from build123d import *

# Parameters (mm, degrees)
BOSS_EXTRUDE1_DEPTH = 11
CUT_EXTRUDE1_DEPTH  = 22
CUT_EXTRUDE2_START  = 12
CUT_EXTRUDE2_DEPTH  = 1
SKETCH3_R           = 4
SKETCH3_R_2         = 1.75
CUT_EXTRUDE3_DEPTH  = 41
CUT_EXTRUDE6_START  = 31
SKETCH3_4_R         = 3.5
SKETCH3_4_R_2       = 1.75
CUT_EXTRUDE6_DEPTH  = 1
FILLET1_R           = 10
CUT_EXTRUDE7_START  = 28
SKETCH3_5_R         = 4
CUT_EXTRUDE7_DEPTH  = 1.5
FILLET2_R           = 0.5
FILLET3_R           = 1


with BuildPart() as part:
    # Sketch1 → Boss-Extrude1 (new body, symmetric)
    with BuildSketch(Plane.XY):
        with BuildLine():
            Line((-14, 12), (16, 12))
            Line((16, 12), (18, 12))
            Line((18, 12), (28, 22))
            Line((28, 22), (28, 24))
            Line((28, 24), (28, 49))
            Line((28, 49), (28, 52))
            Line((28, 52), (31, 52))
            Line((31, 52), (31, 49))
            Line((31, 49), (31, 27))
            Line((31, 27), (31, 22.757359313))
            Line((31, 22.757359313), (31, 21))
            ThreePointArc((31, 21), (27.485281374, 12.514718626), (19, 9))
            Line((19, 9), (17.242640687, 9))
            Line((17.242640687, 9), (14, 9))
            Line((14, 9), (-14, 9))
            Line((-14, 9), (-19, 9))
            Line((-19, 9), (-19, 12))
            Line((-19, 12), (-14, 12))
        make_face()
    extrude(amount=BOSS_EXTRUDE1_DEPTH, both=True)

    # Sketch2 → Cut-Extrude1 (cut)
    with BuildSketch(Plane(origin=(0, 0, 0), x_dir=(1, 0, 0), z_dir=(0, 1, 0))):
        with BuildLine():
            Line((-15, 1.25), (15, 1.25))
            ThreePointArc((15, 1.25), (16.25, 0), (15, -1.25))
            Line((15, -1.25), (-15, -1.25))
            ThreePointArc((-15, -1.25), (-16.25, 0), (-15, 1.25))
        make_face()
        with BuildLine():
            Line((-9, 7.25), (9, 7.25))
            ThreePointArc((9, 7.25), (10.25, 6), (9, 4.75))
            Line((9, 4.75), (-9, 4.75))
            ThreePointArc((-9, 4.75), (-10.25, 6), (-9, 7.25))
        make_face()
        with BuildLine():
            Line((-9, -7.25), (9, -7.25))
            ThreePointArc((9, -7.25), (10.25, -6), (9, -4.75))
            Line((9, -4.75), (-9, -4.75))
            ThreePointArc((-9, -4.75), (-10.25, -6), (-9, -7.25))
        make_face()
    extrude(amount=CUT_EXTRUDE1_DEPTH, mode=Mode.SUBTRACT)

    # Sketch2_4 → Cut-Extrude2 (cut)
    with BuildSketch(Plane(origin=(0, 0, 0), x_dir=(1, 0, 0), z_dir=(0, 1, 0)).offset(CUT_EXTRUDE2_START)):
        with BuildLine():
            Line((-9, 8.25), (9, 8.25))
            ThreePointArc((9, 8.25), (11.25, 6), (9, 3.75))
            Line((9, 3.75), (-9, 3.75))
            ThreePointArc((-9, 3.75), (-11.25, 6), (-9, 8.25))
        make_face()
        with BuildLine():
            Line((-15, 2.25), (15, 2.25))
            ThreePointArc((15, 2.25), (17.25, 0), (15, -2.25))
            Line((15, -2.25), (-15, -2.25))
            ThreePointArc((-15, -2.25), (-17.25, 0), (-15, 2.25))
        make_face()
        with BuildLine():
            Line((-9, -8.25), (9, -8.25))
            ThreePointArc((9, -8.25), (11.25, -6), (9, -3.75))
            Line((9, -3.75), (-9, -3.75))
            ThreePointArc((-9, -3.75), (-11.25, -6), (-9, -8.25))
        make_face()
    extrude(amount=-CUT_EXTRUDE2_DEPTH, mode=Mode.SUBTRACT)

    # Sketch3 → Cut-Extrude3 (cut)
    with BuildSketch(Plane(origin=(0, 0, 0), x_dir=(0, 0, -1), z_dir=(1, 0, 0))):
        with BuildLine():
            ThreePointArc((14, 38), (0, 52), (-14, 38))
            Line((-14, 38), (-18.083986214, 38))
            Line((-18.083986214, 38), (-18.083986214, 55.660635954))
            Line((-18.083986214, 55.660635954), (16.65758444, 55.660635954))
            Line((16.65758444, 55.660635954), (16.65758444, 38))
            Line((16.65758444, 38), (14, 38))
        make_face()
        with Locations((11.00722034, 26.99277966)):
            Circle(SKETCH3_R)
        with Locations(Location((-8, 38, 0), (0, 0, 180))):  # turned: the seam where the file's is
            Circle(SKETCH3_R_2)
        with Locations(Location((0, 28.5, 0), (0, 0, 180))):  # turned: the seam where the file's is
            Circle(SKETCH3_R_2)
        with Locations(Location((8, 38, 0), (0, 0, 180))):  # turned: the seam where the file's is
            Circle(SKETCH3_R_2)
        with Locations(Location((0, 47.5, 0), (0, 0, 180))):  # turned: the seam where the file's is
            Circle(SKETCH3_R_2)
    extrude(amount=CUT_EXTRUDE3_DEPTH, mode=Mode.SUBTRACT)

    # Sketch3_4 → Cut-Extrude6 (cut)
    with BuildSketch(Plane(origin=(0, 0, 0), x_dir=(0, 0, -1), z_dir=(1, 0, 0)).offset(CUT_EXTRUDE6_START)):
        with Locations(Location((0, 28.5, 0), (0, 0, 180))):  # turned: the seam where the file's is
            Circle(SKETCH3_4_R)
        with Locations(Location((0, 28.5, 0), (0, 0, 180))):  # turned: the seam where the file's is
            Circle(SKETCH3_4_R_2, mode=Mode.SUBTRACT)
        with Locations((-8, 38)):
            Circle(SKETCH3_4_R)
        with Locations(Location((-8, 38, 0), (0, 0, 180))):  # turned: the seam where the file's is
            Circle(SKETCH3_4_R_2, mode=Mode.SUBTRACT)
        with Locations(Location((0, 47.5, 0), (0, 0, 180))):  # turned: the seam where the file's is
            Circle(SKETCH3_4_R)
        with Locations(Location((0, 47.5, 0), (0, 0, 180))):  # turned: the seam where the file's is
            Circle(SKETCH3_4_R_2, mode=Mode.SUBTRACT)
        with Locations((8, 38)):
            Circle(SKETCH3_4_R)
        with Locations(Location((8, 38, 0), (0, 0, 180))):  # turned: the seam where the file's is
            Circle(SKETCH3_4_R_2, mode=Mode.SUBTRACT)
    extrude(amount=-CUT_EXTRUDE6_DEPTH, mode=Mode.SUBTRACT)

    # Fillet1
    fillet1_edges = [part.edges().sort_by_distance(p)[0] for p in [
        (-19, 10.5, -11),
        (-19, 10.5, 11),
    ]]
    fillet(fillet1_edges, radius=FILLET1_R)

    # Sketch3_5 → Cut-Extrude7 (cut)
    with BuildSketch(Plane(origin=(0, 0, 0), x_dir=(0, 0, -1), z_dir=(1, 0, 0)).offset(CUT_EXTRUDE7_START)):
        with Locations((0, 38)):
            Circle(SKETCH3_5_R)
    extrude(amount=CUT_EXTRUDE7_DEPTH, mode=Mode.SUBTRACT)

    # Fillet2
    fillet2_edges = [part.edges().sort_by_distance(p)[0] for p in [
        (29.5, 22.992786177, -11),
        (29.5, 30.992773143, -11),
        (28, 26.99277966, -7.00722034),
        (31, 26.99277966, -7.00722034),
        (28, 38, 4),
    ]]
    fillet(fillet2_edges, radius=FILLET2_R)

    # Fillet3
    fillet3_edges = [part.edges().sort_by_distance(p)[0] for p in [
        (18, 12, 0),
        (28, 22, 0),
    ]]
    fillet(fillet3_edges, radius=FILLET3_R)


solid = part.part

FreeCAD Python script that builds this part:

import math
import FreeCAD as App
import Part
import Sketcher

V = App.Vector
Q = App.Units.Quantity


def edges_at(feature, points):
    """Names of the edges that pass closest to the given points."""
    edges = feature.Shape.Edges
    near = lambda p: min(range(len(edges)), key=lambda i: edges[i].distToShape(Part.Vertex(*p))[0])
    return sorted({f"Edge{near(p) + 1}" for p in points})

doc = App.newDocument("Part")
params = doc.addObject("Spreadsheet::Sheet", "Params")
for row, (alias, value) in enumerate([
    ("sketch1_radius", "12 mm"),
    ("sketch1_width", "37 mm"),
    ("sketch1_width2", "38 mm"),
    ("sketch1_width3", "3 mm"),
    ("sketch1_height", "31 mm"),
    ("pad1_length", "22 mm"),
    ("sketch2_width", "30 mm"),
    ("sketch2_width2", "18 mm"),
    ("sketch2_radius", "1.25 mm"),
    ("pocket1_length", "22 mm"),
    ("sketch3_width", "18 mm"),
    ("sketch3_width2", "30 mm"),
    ("sketch3_radius", "2.25 mm"),
    ("pocket2_length", "1 mm"),
    ("sketch4_diameter", "8 mm"),
    ("sketch4_radius", "14 mm"),
    ("sketch4_diameter2", "3.5 mm"),
    ("pocket3_length", "41 mm"),
    ("sketch5_diameter", "7 mm"),
    ("sketch5_diameter2", "3.5 mm"),
    ("pocket4_length", "1 mm"),
    ("fillet_radius", "10 mm"),
    ("sketch6_diameter", "8 mm"),
    ("pocket5_length", "1.5 mm"),
    ("fillet2_radius", "0.5 mm"),
    ("fillet3_radius", "1 mm"),
], start=1):
    params.set(f"A{row}", alias)
    params.set(f"B{row}", "=" + value)
    params.setAlias(f"B{row}", alias)

body = doc.addObject("PartDesign::Body", "Body")

# Sketch on XY plane
sketch1 = body.newObject("Sketcher::SketchObject", "Sketch")
sketch1.AttachmentSupport = (doc.getObject("XY_Plane"), [""])
sketch1.MapMode = "FlatFace"
sketch1.addGeometry([
    Part.LineSegment(V(28, 22, 0), V(18, 12, 0)),  # 0
    Part.LineSegment(V(18, 12, 0), V(-19, 12, 0)),  # 1
    Part.LineSegment(V(-19, 12, 0), V(-19, 9, 0)),  # 2
    Part.LineSegment(V(-19, 9, 0), V(19, 9, 0)),  # 3
    Part.ArcOfCircle(Part.Circle(V(19, 21, 0), V(0, 0, 1), 12), math.radians(-90), math.radians(0)),  # 4
    Part.LineSegment(V(31, 21, 0), V(31, 52, 0)),  # 5
    Part.LineSegment(V(31, 52, 0), V(28, 52, 0)),  # 6
    Part.LineSegment(V(28, 52, 0), V(28, 22, 0)),  # 7
], False)
sketch1.addConstraint([
    Sketcher.Constraint("Coincident", 0, 2, 1, 1),
    Sketcher.Constraint("Coincident", 1, 2, 2, 1),
    Sketcher.Constraint("Coincident", 2, 2, 3, 1),
    Sketcher.Constraint("Tangent", 3, 2, 4, 1),
    Sketcher.Constraint("Tangent", 4, 2, 5, 1),
    Sketcher.Constraint("Coincident", 5, 2, 6, 1),
    Sketcher.Constraint("Coincident", 6, 2, 7, 1),
    Sketcher.Constraint("Coincident", 7, 2, 0, 1),
    Sketcher.Constraint("Horizontal", 1),
    Sketcher.Constraint("Vertical", 2),
    Sketcher.Constraint("Horizontal", 3),
    Sketcher.Constraint("Vertical", 5),
    Sketcher.Constraint("Horizontal", 6),
    Sketcher.Constraint("Vertical", 7),
    Sketcher.Constraint("Equal", 6, 2),
    Sketcher.Constraint("Radius", 4, Q("12 mm")),
    Sketcher.Constraint("DistanceX", 1, 2, 1, 1, Q("37 mm")),
    Sketcher.Constraint("DistanceX", 3, 1, 3, 2, Q("38 mm")),
    Sketcher.Constraint("DistanceX", 6, 2, 6, 1, Q("3 mm")),
    Sketcher.Constraint("DistanceY", 5, 1, 5, 2, Q("31 mm")),
    Sketcher.Constraint("DistanceY", 7, 2, 7, 1, Q("30 mm")),
    Sketcher.Constraint("DistanceX", -1, 1, 4, 3, Q("19 mm")),
    Sketcher.Constraint("DistanceY", -1, 1, 4, 3, Q("21 mm")),
])
sketch1.setExpression("Constraints[15]", "Params.sketch1_radius")
sketch1.setExpression("Constraints[16]", "Params.sketch1_width")
sketch1.setExpression("Constraints[17]", "Params.sketch1_width2")
sketch1.setExpression("Constraints[18]", "Params.sketch1_width3")
sketch1.setExpression("Constraints[19]", "Params.sketch1_height")
pad1 = body.newObject("PartDesign::Pad", "Pad")
pad1.Profile = sketch1
pad1.setExpression("Length", "Params.pad1_length")
pad1.Midplane = True

# Sketch on XZ plane
sketch2 = body.newObject("Sketcher::SketchObject", "Sketch001")
sketch2.AttachmentSupport = (doc.getObject("XZ_Plane"), [""])
sketch2.MapMode = "FlatFace"
sketch2.addGeometry([
    Part.LineSegment(V(15, -1.25, 0), V(-15, -1.25, 0)),  # 0
    Part.ArcOfCircle(Part.Circle(V(-15, 0, 0), V(0, 0, 1), 1.25), math.radians(90), math.radians(270)),  # 1
    Part.LineSegment(V(-15, 1.25, 0), V(15, 1.25, 0)),  # 2
    Part.ArcOfCircle(Part.Circle(V(15, 0, 0), V(0, 0, 1), 1.25), math.radians(-90), math.radians(90)),  # 3
    Part.LineSegment(V(9, -7.25, 0), V(-9, -7.25, 0)),  # 4
    Part.ArcOfCircle(Part.Circle(V(-9, -6, 0), V(0, 0, 1), 1.25), math.radians(90), math.radians(270)),  # 5
    Part.LineSegment(V(-9, -4.75, 0), V(9, -4.75, 0)),  # 6
    Part.ArcOfCircle(Part.Circle(V(9, -6, 0), V(0, 0, 1), 1.25), math.radians(-90), math.radians(90)),  # 7
    Part.LineSegment(V(-9, 7.25, 0), V(9, 7.25, 0)),  # 8
    Part.ArcOfCircle(Part.Circle(V(9, 6, 0), V(0, 0, 1), 1.25), math.radians(-90), math.radians(90)),  # 9
    Part.LineSegment(V(9, 4.75, 0), V(-9, 4.75, 0)),  # 10
    Part.ArcOfCircle(Part.Circle(V(-9, 6, 0), V(0, 0, 1), 1.25), math.radians(90), math.radians(270)),  # 11
], False)
sketch2.addConstraint([
    Sketcher.Constraint("Tangent", 0, 2, 1, 2),
    Sketcher.Constraint("Tangent", 1, 1, 2, 1),
    Sketcher.Constraint("Tangent", 2, 2, 3, 2),
    Sketcher.Constraint("Tangent", 3, 1, 0, 1),
    Sketcher.Constraint("Tangent", 4, 2, 5, 2),
    Sketcher.Constraint("Tangent", 5, 1, 6, 1),
    Sketcher.Constraint("Tangent", 6, 2, 7, 2),
    Sketcher.Constraint("Tangent", 7, 1, 4, 1),
    Sketcher.Constraint("Tangent", 8, 2, 9, 2),
    Sketcher.Constraint("Tangent", 9, 1, 10, 1),
    Sketcher.Constraint("Tangent", 10, 2, 11, 2),
    Sketcher.Constraint("Tangent", 11, 1, 8, 1),
    Sketcher.Constraint("Horizontal", 0),
    Sketcher.Constraint("Horizontal", 2),
    Sketcher.Constraint("Horizontal", 4),
    Sketcher.Constraint("Horizontal", 6),
    Sketcher.Constraint("Horizontal", 8),
    Sketcher.Constraint("Horizontal", 10),
    Sketcher.Constraint("Equal", 3, 5),
    Sketcher.Constraint("Equal", 7, 9),
    Sketcher.Constraint("Symmetric", 1, 3, 3, 3, -1, 1),
    Sketcher.Constraint("Symmetric", 5, 3, 9, 3, -1, 1),
    Sketcher.Constraint("Vertical", 7, 3, 9, 3),
    Sketcher.Constraint("Vertical", 5, 3, 11, 3),
    Sketcher.Constraint("DistanceX", 0, 2, 0, 1, Q("30 mm")),
    Sketcher.Constraint("DistanceX", 4, 2, 4, 1, Q("18 mm")),
    Sketcher.Constraint("Radius", 1, Q("1.25 mm")),
    Sketcher.Constraint("DistanceY", 5, 3, -1, 1, Q("6 mm")),
])
sketch2.setExpression("Constraints[24]", "Params.sketch2_width")
sketch2.setExpression("Constraints[25]", "Params.sketch2_width2")
sketch2.setExpression("Constraints[26]", "Params.sketch2_radius")
pocket1 = body.newObject("PartDesign::Pocket", "Pocket")
pocket1.Profile = sketch2
pocket1.setExpression("Length", "Params.pocket1_length")

# Sketch on XZ plane
sketch3 = body.newObject("Sketcher::SketchObject", "Sketch002")
sketch3.AttachmentSupport = (doc.getObject("XZ_Plane"), [""])
sketch3.MapMode = "FlatFace"
sketch3.AttachmentOffset = App.Placement(V(0, 0, -12), App.Rotation())
sketch3.addGeometry([
    Part.LineSegment(V(9, -8.25, 0), V(-9, -8.25, 0)),  # 0
    Part.ArcOfCircle(Part.Circle(V(-9, -6, 0), V(0, 0, 1), 2.25), math.radians(90), math.radians(270)),  # 1
    Part.LineSegment(V(-9, -3.75, 0), V(9, -3.75, 0)),  # 2
    Part.ArcOfCircle(Part.Circle(V(9, -6, 0), V(0, 0, 1), 2.25), math.radians(-90), math.radians(90)),  # 3
    Part.LineSegment(V(15, -2.25, 0), V(-15, -2.25, 0)),  # 4
    Part.ArcOfCircle(Part.Circle(V(-15, 0, 0), V(0, 0, 1), 2.25), math.radians(90), math.radians(270)),  # 5
    Part.LineSegment(V(-15, 2.25, 0), V(15, 2.25, 0)),  # 6
    Part.ArcOfCircle(Part.Circle(V(15, 0, 0), V(0, 0, 1), 2.25), math.radians(-90), math.radians(90)),  # 7
    Part.LineSegment(V(-9, 8.25, 0), V(9, 8.25, 0)),  # 8
    Part.ArcOfCircle(Part.Circle(V(9, 6, 0), V(0, 0, 1), 2.25), math.radians(-90), math.radians(90)),  # 9
    Part.LineSegment(V(9, 3.75, 0), V(-9, 3.75, 0)),  # 10
    Part.ArcOfCircle(Part.Circle(V(-9, 6, 0), V(0, 0, 1), 2.25), math.radians(90), math.radians(270)),  # 11
], False)
sketch3.addConstraint([
    Sketcher.Constraint("Tangent", 0, 2, 1, 2),
    Sketcher.Constraint("Tangent", 1, 1, 2, 1),
    Sketcher.Constraint("Tangent", 2, 2, 3, 2),
    Sketcher.Constraint("Tangent", 3, 1, 0, 1),
    Sketcher.Constraint("Tangent", 4, 2, 5, 2),
    Sketcher.Constraint("Tangent", 5, 1, 6, 1),
    Sketcher.Constraint("Tangent", 6, 2, 7, 2),
    Sketcher.Constraint("Tangent", 7, 1, 4, 1),
    Sketcher.Constraint("Tangent", 8, 2, 9, 2),
    Sketcher.Constraint("Tangent", 9, 1, 10, 1),
    Sketcher.Constraint("Tangent", 10, 2, 11, 2),
    Sketcher.Constraint("Tangent", 11, 1, 8, 1),
    Sketcher.Constraint("Horizontal", 0),
    Sketcher.Constraint("Horizontal", 2),
    Sketcher.Constraint("Horizontal", 4),
    Sketcher.Constraint("Horizontal", 6),
    Sketcher.Constraint("Horizontal", 8),
    Sketcher.Constraint("Horizontal", 10),
    Sketcher.Constraint("Equal", 3, 5),
    Sketcher.Constraint("Equal", 7, 9),
    Sketcher.Constraint("Symmetric", 5, 3, 7, 3, -1, 1),
    Sketcher.Constraint("Symmetric", 1, 3, 9, 3, -1, 1),
    Sketcher.Constraint("Vertical", 3, 3, 9, 3),
    Sketcher.Constraint("Vertical", 1, 3, 11, 3),
    Sketcher.Constraint("DistanceX", 0, 2, 0, 1, Q("18 mm")),
    Sketcher.Constraint("DistanceX", 4, 2, 4, 1, Q("30 mm")),
    Sketcher.Constraint("Radius", 1, Q("2.25 mm")),
    Sketcher.Constraint("DistanceY", 1, 3, -1, 1, Q("6 mm")),
])
sketch3.setExpression("Constraints[24]", "Params.sketch3_width")
sketch3.setExpression("Constraints[25]", "Params.sketch3_width2")
sketch3.setExpression("Constraints[26]", "Params.sketch3_radius")
pocket2 = body.newObject("PartDesign::Pocket", "Pocket001")
pocket2.Profile = sketch3
pocket2.setExpression("Length", "Params.pocket2_length")
pocket2.Reversed = True

# Sketch on YZ plane
sketch4 = body.newObject("Sketcher::SketchObject", "Sketch003")
sketch4.AttachmentSupport = (doc.getObject("YZ_Plane"), [""])
sketch4.MapMode = "FlatFace"
sketch4.addGeometry([
    Part.ArcOfCircle(Part.Circle(V(38, 0, 0), V(0, 0, 1), 14), math.radians(-90), math.radians(90)),  # 0
    Part.LineSegment(V(38, -14, 0), V(38, -16.657584, 0)),  # 1
    Part.LineSegment(V(38, -16.657584, 0), V(55.660636, -16.657584, 0)),  # 2
    Part.LineSegment(V(55.660636, -16.657584, 0), V(55.660636, 18.083986, 0)),  # 3
    Part.LineSegment(V(55.660636, 18.083986, 0), V(38, 18.083986, 0)),  # 4
    Part.LineSegment(V(38, 18.083986, 0), V(38, 14, 0)),  # 5
    Part.Circle(V(26.99278, -11.00722, 0), V(0, 0, 1), 4),  # 6
    Part.Circle(V(38, 8, 0), V(0, 0, 1), 1.75),  # 7
    Part.Circle(V(28.5, 0, 0), V(0, 0, 1), 1.75),  # 8
    Part.Circle(V(38, -8, 0), V(0, 0, 1), 1.75),  # 9
    Part.Circle(V(47.5, 0, 0), V(0, 0, 1), 1.75),  # 10
], False)
sketch4.addConstraint([
    Sketcher.Constraint("Coincident", 0, 1, 1, 1),
    Sketcher.Constraint("Coincident", 1, 2, 2, 1),
    Sketcher.Constraint("Coincident", 2, 2, 3, 1),
    Sketcher.Constraint("Coincident", 3, 2, 4, 1),
    Sketcher.Constraint("Coincident", 4, 2, 5, 1),
    Sketcher.Constraint("Coincident", 5, 2, 0, 2),
    Sketcher.Constraint("Vertical", 1),
    Sketcher.Constraint("Horizontal", 2),
    Sketcher.Constraint("Vertical", 3),
    Sketcher.Constraint("Horizontal", 4),
    Sketcher.Constraint("Vertical", 5),
    Sketcher.Constraint("Equal", 7, 8),
    Sketcher.Constraint("Equal", 8, 9),
    Sketcher.Constraint("Equal", 9, 10),
    Sketcher.Constraint("Symmetric", 7, 3, 9, 3, -1),
    Sketcher.Constraint("Symmetric", 0, 1, 5, 2, -1),
    Sketcher.Constraint("PointOnObject", 8, 3, -1),
    Sketcher.Constraint("PointOnObject", 10, 3, -1),
    Sketcher.Constraint("Vertical", 0, 3, 7, 3),
    Sketcher.Constraint("Vertical", 9, 3, 0, 1),
    Sketcher.Constraint("Diameter", 6, Q("8 mm")),
    Sketcher.Constraint("Radius", 0, Q("14 mm")),
    Sketcher.Constraint("Diameter", 7, Q("3.5 mm")),
    Sketcher.Constraint("DistanceX", -1, 1, 0, 3, Q("38 mm")),
    Sketcher.Constraint("DistanceY", -1, 1, 7, 3, Q("8 mm")),
    Sketcher.Constraint("DistanceX", 8, 3, 10, 3, Q("19 mm")),
    Sketcher.Constraint("DistanceX", -1, 1, 8, 3, Q("28.5 mm")),
    Sketcher.Constraint("DistanceY", 3, 1, 3, 2, Q("34.741571 mm")),
    Sketcher.Constraint("DistanceX", 2, 1, 2, 2, Q("17.660636 mm")),
    Sketcher.Constraint("DistanceY", 1, 2, 1, 1, Q("2.657584 mm")),
    Sketcher.Constraint("DistanceX", -1, 1, 6, 3, Q("26.99278 mm")),
    Sketcher.Constraint("DistanceY", 6, 3, -1, 1, Q("11.00722 mm")),
])
sketch4.setExpression("Constraints[20]", "Params.sketch4_diameter")
sketch4.setExpression("Constraints[21]", "Params.sketch4_radius")
sketch4.setExpression("Constraints[22]", "Params.sketch4_diameter2")
pocket3 = body.newObject("PartDesign::Pocket", "Pocket002")
pocket3.Profile = sketch4
pocket3.setExpression("Length", "Params.pocket3_length")
pocket3.Reversed = True

# Sketch on YZ plane
sketch5 = body.newObject("Sketcher::SketchObject", "Sketch004")
sketch5.AttachmentSupport = (doc.getObject("YZ_Plane"), [""])
sketch5.MapMode = "FlatFace"
sketch5.AttachmentOffset = App.Placement(V(0, 0, 31), App.Rotation())
sketch5.addGeometry([
    Part.Circle(V(28.5, 0, 0), V(0, 0, 1), 3.5),  # 0
    Part.Circle(V(28.5, 0, 0), V(0, 0, 1), 1.75),  # 1
    Part.Circle(V(38, 8, 0), V(0, 0, 1), 3.5),  # 2
    Part.Circle(V(38, 8, 0), V(0, 0, 1), 1.75),  # 3
    Part.Circle(V(47.5, 0, 0), V(0, 0, 1), 3.5),  # 4
    Part.Circle(V(47.5, 0, 0), V(0, 0, 1), 1.75),  # 5
    Part.Circle(V(38, -8, 0), V(0, 0, 1), 3.5),  # 6
    Part.Circle(V(38, -8, 0), V(0, 0, 1), 1.75),  # 7
], False)
sketch5.addConstraint([
    Sketcher.Constraint("Coincident", 1, 3, 0, 3),
    Sketcher.Constraint("Coincident", 3, 3, 2, 3),
    Sketcher.Constraint("Coincident", 5, 3, 4, 3),
    Sketcher.Constraint("Coincident", 7, 3, 6, 3),
    Sketcher.Constraint("Equal", 0, 2),
    Sketcher.Constraint("Equal", 1, 3),
    Sketcher.Constraint("Equal", 2, 4),
    Sketcher.Constraint("Equal", 3, 5),
    Sketcher.Constraint("Equal", 4, 6),
    Sketcher.Constraint("Equal", 5, 7),
    Sketcher.Constraint("Symmetric", 2, 3, 6, 3, -1),
    Sketcher.Constraint("PointOnObject", 0, 3, -1),
    Sketcher.Constraint("PointOnObject", 4, 3, -1),
    Sketcher.Constraint("Diameter", 0, Q("7 mm")),
    Sketcher.Constraint("Diameter", 1, Q("3.5 mm")),
    Sketcher.Constraint("DistanceX", -1, 1, 2, 3, Q("38 mm")),
    Sketcher.Constraint("DistanceY", -1, 1, 2, 3, Q("8 mm")),
    Sketcher.Constraint("DistanceX", 0, 3, 4, 3, Q("19 mm")),
    Sketcher.Constraint("DistanceX", -1, 1, 0, 3, Q("28.5 mm")),
])
sketch5.setExpression("Constraints[13]", "Params.sketch5_diameter")
sketch5.setExpression("Constraints[14]", "Params.sketch5_diameter2")
pocket4 = body.newObject("PartDesign::Pocket", "Pocket003")
pocket4.Profile = sketch5
pocket4.setExpression("Length", "Params.pocket4_length")
doc.recompute()

fillet = body.newObject("PartDesign::Fillet", "Fillet")
fillet.Base = (pocket4, edges_at(pocket4, [(-19, 10.5, -11), (-19, 10.5, 11)]))
fillet.setExpression("Radius", "Params.fillet_radius")

# Sketch on YZ plane
sketch6 = body.newObject("Sketcher::SketchObject", "Sketch005")
sketch6.AttachmentSupport = (doc.getObject("YZ_Plane"), [""])
sketch6.MapMode = "FlatFace"
sketch6.AttachmentOffset = App.Placement(V(0, 0, 28), App.Rotation())
sketch6.addGeometry(Part.Circle(V(38, 0, 0), V(0, 0, 1), 4), False)
sketch6.addConstraint([
    Sketcher.Constraint("PointOnObject", 0, 3, -1),
    Sketcher.Constraint("Diameter", 0, Q("8 mm")),
    Sketcher.Constraint("DistanceX", -1, 1, 0, 3, Q("38 mm")),
])
sketch6.setExpression("Constraints[1]", "Params.sketch6_diameter")
pocket5 = body.newObject("PartDesign::Pocket", "Pocket004")
pocket5.Profile = sketch6
pocket5.setExpression("Length", "Params.pocket5_length")
pocket5.Reversed = True
doc.recompute()

fillet2 = body.newObject("PartDesign::Fillet", "Fillet001")
fillet2.Base = (pocket5, edges_at(pocket5, [
    (29.5, 22.993, -11),
    (29.5, 30.993, -11),
    (28, 26.993, -7.007),
    (31, 26.993, -7.007),
    (28, 38, 4),
]))
fillet2.setExpression("Radius", "Params.fillet2_radius")
doc.recompute()

fillet3 = body.newObject("PartDesign::Fillet", "Fillet002")
fillet3.Base = (fillet2, edges_at(fillet2, [(18, 12, 0), (28, 22, 0)]))
fillet3.setExpression("Radius", "Params.fillet3_radius")

doc.recompute()
